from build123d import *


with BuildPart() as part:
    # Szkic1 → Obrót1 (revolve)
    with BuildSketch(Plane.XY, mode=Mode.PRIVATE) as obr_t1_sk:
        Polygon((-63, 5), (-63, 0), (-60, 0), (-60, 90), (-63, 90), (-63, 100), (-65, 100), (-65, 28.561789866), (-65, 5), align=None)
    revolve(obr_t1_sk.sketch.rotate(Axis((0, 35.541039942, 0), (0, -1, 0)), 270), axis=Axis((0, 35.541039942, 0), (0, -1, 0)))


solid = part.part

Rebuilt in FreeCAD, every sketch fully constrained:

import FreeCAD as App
import Part
import Sketcher
from FreeCAD import Vector
Q = App.Units.Quantity


def add_polygon(sketch, points):
    """Adds a closed chain of lines whose ends are joined by coincident constraints."""
    first, n = sketch.GeometryCount, len(points)
    for a, b in zip(points, points[1:] + points[:1]):
        sketch.addGeometry(Part.LineSegment(App.Vector(*a, 0), App.Vector(*b, 0)), False)
    for i in range(n):
        sketch.addConstraint(Sketcher.Constraint("Coincident", first + i, 2, first + (i + 1) % n, 1))

doc = App.newDocument("Part")
params = doc.addObject("Spreadsheet::Sheet", "Params")
for row, (alias, value) in enumerate([
    ("sketch1_width", "3 mm"),
    ("sketch1_width2", "2 mm"),
    ("sketch1_height", "5 mm"),
    ("sketch1_height2", "90 mm"),
    ("sketch1_height3", "10 mm"),
    ("revolution_angle", "360 deg"),
], start=1):
    params.set(f"A{row}", alias)
    params.set(f"B{row}", "=" + value)
    params.setAlias(f"B{row}", alias)

body = doc.addObject("PartDesign::Body", "Body")

# Sketch on XY plane
sketch1 = doc.addObject("Sketcher::SketchObject", "Sketch")
body.addObject(sketch1)
sketch1.AttachmentSupport = (doc.XY_Plane, [""])
sketch1.MapMode = "FlatFace"
add_polygon(sketch1, [(-63, 5), (-63, 0), (-60, 0), (-60, 90), (-63, 90), (-63, 100), (-65, 100), (-65, 5)])  # lines 0-7
sketch1.addConstraint([
    Sketcher.Constraint("Vertical", 0),
    Sketcher.Constraint("Horizontal", 1),
    Sketcher.Constraint("Vertical", 2),
    Sketcher.Constraint("Horizontal", 3),
    Sketcher.Constraint("Vertical", 4),
    Sketcher.Constraint("Horizontal", 5),
    Sketcher.Constraint("Vertical", 6),
    Sketcher.Constraint("Horizontal", 7),
    Sketcher.Constraint("PointOnObject", 0, 2, -1),
    Sketcher.Constraint("Vertical", 0, 2, 3, 2),
    Sketcher.Constraint("DistanceX", 1, 1, 1, 2, Q("3 mm")),
    Sketcher.Constraint("DistanceX", 5, 2, 5, 1, Q("2 mm")),
    Sketcher.Constraint("DistanceY", 0, 2, 0, 1, Q("5 mm")),
    Sketcher.Constraint("DistanceY", 2, 1, 2, 2, Q("90 mm")),
    Sketcher.Constraint("DistanceY", 4, 1, 4, 2, Q("10 mm")),
    Sketcher.Constraint("DistanceX", 0, 2, -1, 1, Q("63 mm")),
])
sketch1.setExpression("Constraints[18]", "Params.sketch1_width")
sketch1.setExpression("Constraints[19]", "Params.sketch1_width2")
sketch1.setExpression("Constraints[20]", "Params.sketch1_height")
sketch1.setExpression("Constraints[21]", "Params.sketch1_height2")
sketch1.setExpression("Constraints[22]", "Params.sketch1_height3")
revolution = doc.addObject("PartDesign::Revolution", "Revolution")
body.addObject(revolution)
revolution.Profile = sketch1
revolution.ReferenceAxis = (sketch1, ["V_Axis"])
revolution.setExpression("Angle", "Params.revolution_angle")

doc.recompute()
